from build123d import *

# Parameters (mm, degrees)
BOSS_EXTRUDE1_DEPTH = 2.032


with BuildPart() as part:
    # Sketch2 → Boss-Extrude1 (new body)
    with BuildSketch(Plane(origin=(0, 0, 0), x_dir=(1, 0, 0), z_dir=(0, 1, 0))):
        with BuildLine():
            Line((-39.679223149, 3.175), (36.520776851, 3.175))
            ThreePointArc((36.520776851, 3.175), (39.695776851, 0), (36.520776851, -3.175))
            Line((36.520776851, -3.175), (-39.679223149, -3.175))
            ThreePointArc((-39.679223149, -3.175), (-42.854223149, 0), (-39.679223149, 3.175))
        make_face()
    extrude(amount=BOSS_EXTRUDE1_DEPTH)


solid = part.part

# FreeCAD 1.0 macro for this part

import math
import FreeCAD as App
import Part
import Sketcher
Q = App.Units.Quantity

doc = App.newDocument("Part")
params = doc.addObject("Spreadsheet::Sheet", "Params")
for row, (alias, value) in enumerate([
    ("sketch1_width", "3 in"),
    ("sketch1_radius", "0.125 in"),
    ("pad1_length", "0.08 in"),
], start=1):
    params.set(f"A{row}", alias)
    params.set(f"B{row}", "=" + value)
    params.setAlias(f"B{row}", alias)

body = doc.addObject("PartDesign::Body", "Body")

sketch1 = doc.addObject("Sketcher::SketchObject", "Sketch")
body.addObject(sketch1)
sketch1.AttachmentSupport = (doc.XZ_Plane, [""])
sketch1.MapMode = "FlatFace"
sketch1.addGeometry([
    Part.LineSegment(App.Vector(36.5, -3.2, 0), App.Vector(-39.7, -3.2, 0)),
    Part.ArcOfCircle(Part.Circle(App.Vector(-39.7, 0, 0), App.Vector(0, 0, 1), 3.2), math.radians(90), math.radians(270)),
    Part.LineSegment(App.Vector(-39.7, 3.2, 0), App.Vector(36.5, 3.2, 0)),
    Part.ArcOfCircle(Part.Circle(App.Vector(36.5, 0, 0), App.Vector(0, 0, 1), 3.2), math.radians(-90), math.radians(90)),
], False)
sketch1.addConstraint([
    Sketcher.Constraint("Tangent", 0, 2, 1, 2),
    Sketcher.Constraint("Tangent", 1, 1, 2, 1),
    Sketcher.Constraint("Tangent", 2, 2, 3, 2),
    Sketcher.Constraint("Tangent", 3, 1, 0, 1),
    Sketcher.Constraint("Horizontal", 0),
    Sketcher.Constraint("Horizontal", 2),
    Sketcher.Constraint("PointOnObject", 1, 3, -1),
    Sketcher.Constraint("DistanceX", 0, 2, 0, 1, Q("3 in")),
    Sketcher.Constraint("Radius", 1, Q("0.125 in")),
    Sketcher.Constraint("DistanceX", 1, 3, -1, 1, 39.679223),
])
sketch1.setExpression("Constraints[7]", "Params.sketch1_width")
sketch1.setExpression("Constraints[8]", "Params.sketch1_radius")
pad1 = doc.addObject("PartDesign::Pad", "Pad")
body.addObject(pad1)
pad1.Profile = sketch1
pad1.setExpression("Length", "Params.pad1_length")
pad1.Reversed = True

doc.recompute()
